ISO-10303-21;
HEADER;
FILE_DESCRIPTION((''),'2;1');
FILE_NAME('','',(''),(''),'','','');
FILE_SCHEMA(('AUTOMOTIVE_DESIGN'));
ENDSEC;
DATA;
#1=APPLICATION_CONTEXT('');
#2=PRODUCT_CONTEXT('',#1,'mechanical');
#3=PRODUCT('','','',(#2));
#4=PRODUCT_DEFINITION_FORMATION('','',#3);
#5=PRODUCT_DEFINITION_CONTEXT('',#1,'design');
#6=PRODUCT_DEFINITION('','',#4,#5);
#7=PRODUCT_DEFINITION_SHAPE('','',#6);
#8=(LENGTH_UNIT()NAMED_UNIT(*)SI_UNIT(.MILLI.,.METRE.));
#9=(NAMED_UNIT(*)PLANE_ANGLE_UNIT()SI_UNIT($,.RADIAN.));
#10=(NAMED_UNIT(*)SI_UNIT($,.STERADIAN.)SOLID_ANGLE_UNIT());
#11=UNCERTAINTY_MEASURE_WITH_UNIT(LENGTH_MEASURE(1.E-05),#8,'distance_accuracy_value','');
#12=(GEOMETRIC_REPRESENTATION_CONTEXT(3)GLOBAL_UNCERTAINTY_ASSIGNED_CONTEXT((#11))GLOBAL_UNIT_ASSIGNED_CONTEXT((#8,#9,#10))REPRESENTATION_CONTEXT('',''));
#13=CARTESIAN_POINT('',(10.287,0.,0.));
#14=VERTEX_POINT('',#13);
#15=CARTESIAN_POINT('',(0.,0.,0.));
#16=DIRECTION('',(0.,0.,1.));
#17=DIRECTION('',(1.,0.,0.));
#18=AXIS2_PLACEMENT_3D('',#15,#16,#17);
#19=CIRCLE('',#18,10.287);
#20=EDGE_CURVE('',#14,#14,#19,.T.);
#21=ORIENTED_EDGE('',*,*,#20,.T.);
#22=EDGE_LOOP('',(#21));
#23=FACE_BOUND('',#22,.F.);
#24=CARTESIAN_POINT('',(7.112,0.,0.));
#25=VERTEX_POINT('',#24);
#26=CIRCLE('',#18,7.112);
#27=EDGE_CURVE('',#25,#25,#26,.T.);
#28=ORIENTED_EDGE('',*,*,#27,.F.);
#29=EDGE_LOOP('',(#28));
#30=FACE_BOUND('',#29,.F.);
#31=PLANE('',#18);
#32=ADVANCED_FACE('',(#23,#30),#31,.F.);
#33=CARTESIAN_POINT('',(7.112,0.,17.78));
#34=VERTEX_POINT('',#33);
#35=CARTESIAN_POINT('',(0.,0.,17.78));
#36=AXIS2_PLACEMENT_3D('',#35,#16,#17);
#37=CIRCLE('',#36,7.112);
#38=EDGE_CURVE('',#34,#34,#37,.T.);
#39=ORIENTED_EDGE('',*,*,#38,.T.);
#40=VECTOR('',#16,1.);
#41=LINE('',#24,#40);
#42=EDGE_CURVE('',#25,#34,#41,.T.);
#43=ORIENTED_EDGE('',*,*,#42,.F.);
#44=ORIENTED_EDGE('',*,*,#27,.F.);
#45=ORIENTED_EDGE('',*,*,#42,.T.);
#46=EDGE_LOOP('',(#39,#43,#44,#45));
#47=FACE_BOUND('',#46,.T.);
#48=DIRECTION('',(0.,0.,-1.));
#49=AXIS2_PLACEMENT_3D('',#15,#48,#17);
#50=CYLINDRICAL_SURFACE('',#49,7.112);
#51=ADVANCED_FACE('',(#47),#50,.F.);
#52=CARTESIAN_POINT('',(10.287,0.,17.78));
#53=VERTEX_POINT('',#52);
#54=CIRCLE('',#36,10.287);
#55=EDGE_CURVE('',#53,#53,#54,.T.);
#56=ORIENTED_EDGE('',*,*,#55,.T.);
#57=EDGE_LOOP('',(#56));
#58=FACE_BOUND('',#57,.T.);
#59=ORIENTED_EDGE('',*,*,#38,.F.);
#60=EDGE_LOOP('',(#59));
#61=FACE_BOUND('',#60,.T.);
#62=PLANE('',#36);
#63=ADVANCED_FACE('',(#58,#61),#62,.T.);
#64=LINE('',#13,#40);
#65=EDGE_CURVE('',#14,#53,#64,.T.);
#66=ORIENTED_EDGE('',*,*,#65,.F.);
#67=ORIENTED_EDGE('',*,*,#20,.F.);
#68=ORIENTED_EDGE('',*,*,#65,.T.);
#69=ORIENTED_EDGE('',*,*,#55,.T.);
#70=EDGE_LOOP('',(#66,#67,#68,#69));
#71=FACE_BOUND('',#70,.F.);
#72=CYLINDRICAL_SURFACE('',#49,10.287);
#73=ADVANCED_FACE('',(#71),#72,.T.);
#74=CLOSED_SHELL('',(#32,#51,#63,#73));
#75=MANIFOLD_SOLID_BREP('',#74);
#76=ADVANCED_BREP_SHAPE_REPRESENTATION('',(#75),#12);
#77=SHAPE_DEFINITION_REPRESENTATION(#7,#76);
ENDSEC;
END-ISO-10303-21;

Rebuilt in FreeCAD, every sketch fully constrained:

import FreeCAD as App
import Part
import Sketcher

V = App.Vector
Q = App.Units.Quantity

doc = App.newDocument("Part")
body = doc.addObject("PartDesign::Body", "Body")

# Sketch on XY plane
sketch1 = body.newObject("Sketcher::SketchObject", "Sketch")
sketch1.AttachmentSupport = (doc.getObject("XY_Plane"), [""])
sketch1.MapMode = "FlatFace"
sketch1.addGeometry(Part.Circle(V(0, 0, 0), V(0, 0, 1), 10), False)
sketch1.addGeometry(Part.Circle(V(0, 0, 0), V(0, 0, 1), 7), False)
sketch1.addConstraint(Sketcher.Constraint("Coincident", 0, 3, -1, 1))
sketch1.addConstraint(Sketcher.Constraint("Coincident", 1, 3, -1, 1))
sketch1.addConstraint(Sketcher.Constraint("Diameter", 1, Q("0.56 in")))
sketch1.addConstraint(Sketcher.Constraint("Diameter", 0, Q("0.81 in")))
pad1 = body.newObject("PartDesign::Pad", "Pad")
pad1.Profile = sketch1
pad1.Length = Q("0.7 in")

doc.recompute()
